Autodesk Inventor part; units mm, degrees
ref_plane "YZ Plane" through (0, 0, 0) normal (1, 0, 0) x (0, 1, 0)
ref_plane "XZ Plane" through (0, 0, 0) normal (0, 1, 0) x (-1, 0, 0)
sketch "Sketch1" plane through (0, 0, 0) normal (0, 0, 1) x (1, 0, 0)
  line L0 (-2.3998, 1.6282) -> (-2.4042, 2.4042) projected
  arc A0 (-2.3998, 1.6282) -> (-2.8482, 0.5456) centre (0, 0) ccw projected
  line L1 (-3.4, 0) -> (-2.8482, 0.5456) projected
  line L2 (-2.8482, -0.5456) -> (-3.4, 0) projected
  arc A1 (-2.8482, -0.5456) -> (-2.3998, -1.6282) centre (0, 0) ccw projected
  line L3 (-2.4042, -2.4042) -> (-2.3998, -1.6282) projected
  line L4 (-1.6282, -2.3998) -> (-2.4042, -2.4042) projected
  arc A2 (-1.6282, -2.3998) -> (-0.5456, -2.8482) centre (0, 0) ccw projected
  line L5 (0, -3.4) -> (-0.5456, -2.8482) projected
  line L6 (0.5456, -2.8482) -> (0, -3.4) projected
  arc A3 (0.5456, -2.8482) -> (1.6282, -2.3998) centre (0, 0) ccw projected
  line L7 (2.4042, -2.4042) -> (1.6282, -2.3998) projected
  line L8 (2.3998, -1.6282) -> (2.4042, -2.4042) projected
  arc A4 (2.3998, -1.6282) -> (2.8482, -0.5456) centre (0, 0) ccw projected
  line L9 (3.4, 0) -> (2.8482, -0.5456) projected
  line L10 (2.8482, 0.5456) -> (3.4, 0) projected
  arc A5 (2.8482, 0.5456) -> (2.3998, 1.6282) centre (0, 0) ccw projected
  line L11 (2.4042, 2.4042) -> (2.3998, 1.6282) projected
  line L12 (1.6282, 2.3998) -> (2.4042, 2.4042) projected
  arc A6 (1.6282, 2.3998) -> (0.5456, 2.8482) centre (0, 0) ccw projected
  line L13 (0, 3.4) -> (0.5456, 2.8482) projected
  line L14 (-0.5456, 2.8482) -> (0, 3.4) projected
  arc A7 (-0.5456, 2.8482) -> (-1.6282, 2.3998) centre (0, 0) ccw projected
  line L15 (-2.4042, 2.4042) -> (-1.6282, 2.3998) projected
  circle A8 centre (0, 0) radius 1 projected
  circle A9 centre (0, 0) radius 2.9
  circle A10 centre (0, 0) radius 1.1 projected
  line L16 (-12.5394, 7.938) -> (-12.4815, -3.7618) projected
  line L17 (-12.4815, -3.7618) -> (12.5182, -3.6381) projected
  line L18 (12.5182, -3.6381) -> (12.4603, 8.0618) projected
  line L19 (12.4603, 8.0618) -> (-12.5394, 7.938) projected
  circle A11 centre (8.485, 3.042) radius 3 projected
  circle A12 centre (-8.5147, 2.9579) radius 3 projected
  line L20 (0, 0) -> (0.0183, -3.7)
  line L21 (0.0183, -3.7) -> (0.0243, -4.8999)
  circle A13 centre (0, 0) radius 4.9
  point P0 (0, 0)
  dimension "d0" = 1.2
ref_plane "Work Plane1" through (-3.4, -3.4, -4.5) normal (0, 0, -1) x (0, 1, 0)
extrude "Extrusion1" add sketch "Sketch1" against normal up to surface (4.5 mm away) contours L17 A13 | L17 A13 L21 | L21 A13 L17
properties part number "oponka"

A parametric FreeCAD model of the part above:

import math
import FreeCAD as App
import Part
import Sketcher

V = App.Vector
Q = App.Units.Quantity

doc = App.newDocument("Part")
body = doc.addObject("PartDesign::Body", "Body")

# Sketch on XY plane
sketch1 = body.newObject("Sketcher::SketchObject", "Sketch")
sketch1.AttachmentSupport = (doc.getObject("XY_Plane"), [""])
sketch1.MapMode = "FlatFace"
sketch1.addGeometry(Part.Circle(V(0, 0, 0), V(0, 0, 1), 4.9), False)
sketch1.addGeometry(Part.ArcOfCircle(Part.Circle(V(0, 0, 0), V(0, 0, 1), 2.9), math.radians(146), math.radians(169)), False)
sketch1.addGeometry(Part.LineSegment(V(-2.4, 1.628, 0), V(-2.404, 2.404, 0)), False)
sketch1.addGeometry(Part.LineSegment(V(-2.404, 2.404, 0), V(-1.628, 2.4, 0)), False)
sketch1.addGeometry(Part.ArcOfCircle(Part.Circle(V(0, 0, 0), V(0, 0, 1), 2.9), math.radians(101), math.radians(124)), False)
sketch1.addGeometry(Part.LineSegment(V(-0.546, 2.848, 0), V(0, 3.4, 0)), False)
sketch1.addGeometry(Part.LineSegment(V(0, 3.4, 0), V(0.546, 2.848, 0)), False)
sketch1.addGeometry(Part.ArcOfCircle(Part.Circle(V(0, 0, 0), V(0, 0, 1), 2.9), math.radians(56), math.radians(79)), False)
sketch1.addGeometry(Part.LineSegment(V(1.628, 2.4, 0), V(2.404, 2.404, 0)), False)
sketch1.addGeometry(Part.LineSegment(V(2.404, 2.404, 0), V(2.4, 1.628, 0)), False)
sketch1.addGeometry(Part.ArcOfCircle(Part.Circle(V(0, 0, 0), V(0, 0, 1), 2.9), math.radians(11), math.radians(34)), False)
sketch1.addGeometry(Part.LineSegment(V(2.848, 0.546, 0), V(3.4, 0, 0)), False)
sketch1.addGeometry(Part.LineSegment(V(3.4, 0, 0), V(2.848, -0.546, 0)), False)
sketch1.addGeometry(Part.ArcOfCircle(Part.Circle(V(0, 0, 0), V(0, 0, 1), 2.9), math.radians(-34), math.radians(-11)), False)
sketch1.addGeometry(Part.LineSegment(V(2.4, -1.628, 0), V(2.404, -2.404, 0)), False)
sketch1.addGeometry(Part.LineSegment(V(2.404, -2.404, 0), V(1.628, -2.4, 0)), False)
sketch1.addGeometry(Part.ArcOfCircle(Part.Circle(V(0, 0, 0), V(0, 0, 1), 2.9), math.radians(-79), math.radians(-56)), False)
sketch1.addGeometry(Part.LineSegment(V(0.546, -2.848, 0), V(0.017, -3.383, 0)), False)
sketch1.addGeometry(Part.LineSegment(V(0.017, -3.383, 0), V(0, -3.4, 0)), False)
sketch1.addGeometry(Part.LineSegment(V(0, -3.4, 0), V(-0.546, -2.848, 0)), False)
sketch1.addGeometry(Part.ArcOfCircle(Part.Circle(V(0, 0, 0), V(0, 0, 1), 2.9), math.radians(-124), math.radians(-101)), False)
sketch1.addGeometry(Part.LineSegment(V(-1.628, -2.4, 0), V(-2.404, -2.404, 0)), False)
sketch1.addGeometry(Part.LineSegment(V(-2.404, -2.404, 0), V(-2.4, -1.628, 0)), False)
sketch1.addGeometry(Part.ArcOfCircle(Part.Circle(V(0, 0, 0), V(0, 0, 1), 2.9), math.radians(-169), math.radians(-146)), False)
sketch1.addGeometry(Part.LineSegment(V(-2.848, -0.546, 0), V(-3.4, 0, 0)), False)
sketch1.addGeometry(Part.LineSegment(V(-3.4, 0, 0), V(-2.848, 0.546, 0)), False)
sketch1.addConstraint(Sketcher.Constraint("Coincident", 1, 1, 2, 1))
sketch1.addConstraint(Sketcher.Constraint("Coincident", 2, 2, 3, 1))
sketch1.addConstraint(Sketcher.Constraint("Coincident", 3, 2, 4, 2))
sketch1.addConstraint(Sketcher.Constraint("Coincident", 4, 1, 5, 1))
sketch1.addConstraint(Sketcher.Constraint("Coincident", 5, 2, 6, 1))
sketch1.addConstraint(Sketcher.Constraint("Coincident", 6, 2, 7, 2))
sketch1.addConstraint(Sketcher.Constraint("Coincident", 7, 1, 8, 1))
sketch1.addConstraint(Sketcher.Constraint("Coincident", 8, 2, 9, 1))
sketch1.addConstraint(Sketcher.Constraint("Coincident", 9, 2, 10, 2))
sketch1.addConstraint(Sketcher.Constraint("Coincident", 10, 1, 11, 1))
sketch1.addConstraint(Sketcher.Constraint("Coincident", 11, 2, 12, 1))
sketch1.addConstraint(Sketcher.Constraint("Coincident", 12, 2, 13, 2))
sketch1.addConstraint(Sketcher.Constraint("Coincident", 13, 1, 14, 1))
sketch1.addConstraint(Sketcher.Constraint("Coincident", 14, 2, 15, 1))
sketch1.addConstraint(Sketcher.Constraint("Coincident", 15, 2, 16, 2))
sketch1.addConstraint(Sketcher.Constraint("Coincident", 16, 1, 17, 1))
sketch1.addConstraint(Sketcher.Constraint("Coincident", 17, 2, 18, 1))
sketch1.addConstraint(Sketcher.Constraint("Coincident", 18, 2, 19, 1))
sketch1.addConstraint(Sketcher.Constraint("Coincident", 19, 2, 20, 2))
sketch1.addConstraint(Sketcher.Constraint("Coincident", 20, 1, 21, 1))
sketch1.addConstraint(Sketcher.Constraint("Coincident", 21, 2, 22, 1))
sketch1.addConstraint(Sketcher.Constraint("Coincident", 22, 2, 23, 2))
sketch1.addConstraint(Sketcher.Constraint("Coincident", 23, 1, 24, 1))
sketch1.addConstraint(Sketcher.Constraint("Coincident", 24, 2, 25, 1))
sketch1.addConstraint(Sketcher.Constraint("Coincident", 25, 2, 1, 2))
sketch1.addConstraint(Sketcher.Constraint("Coincident", 0, 3, -1, 1))
sketch1.addConstraint(Sketcher.Constraint("Coincident", 1, 3, -1, 1))
sketch1.addConstraint(Sketcher.Constraint("Coincident", 4, 3, -1, 1))
sketch1.addConstraint(Sketcher.Constraint("Coincident", 7, 3, -1, 1))
sketch1.addConstraint(Sketcher.Constraint("Coincident", 10, 3, -1, 1))
sketch1.addConstraint(Sketcher.Constraint("Coincident", 13, 3, -1, 1))
sketch1.addConstraint(Sketcher.Constraint("Coincident", 16, 3, -1, 1))
sketch1.addConstraint(Sketcher.Constraint("Coincident", 20, 3, -1, 1))
sketch1.addConstraint(Sketcher.Constraint("Coincident", 23, 3, -1, 1))
sketch1.addConstraint(Sketcher.Constraint("Equal", 1, 4))
sketch1.addConstraint(Sketcher.Constraint("Equal", 4, 7))
sketch1.addConstraint(Sketcher.Constraint("Equal", 7, 10))
sketch1.addConstraint(Sketcher.Constraint("Equal", 10, 13))
sketch1.addConstraint(Sketcher.Constraint("Equal", 13, 16))
sketch1.addConstraint(Sketcher.Constraint("Equal", 16, 20))
sketch1.addConstraint(Sketcher.Constraint("Equal", 20, 23))
sketch1.addConstraint(Sketcher.Constraint("Symmetric", 2, 2, 14, 2, -1, 1))
sketch1.addConstraint(Sketcher.Constraint("Symmetric", 5, 2, 18, 2, -1, 1))
sketch1.addConstraint(Sketcher.Constraint("Symmetric", 8, 2, 21, 2, -1, 1))
sketch1.addConstraint(Sketcher.Constraint("Symmetric", 11, 2, 24, 2, -1, 1))
sketch1.addConstraint(Sketcher.Constraint("Symmetric", 2, 2, 8, 2, -2))
sketch1.addConstraint(Sketcher.Constraint("PointOnObject", 5, 2, -2))
sketch1.addConstraint(Sketcher.Constraint("PointOnObject", 11, 2, -1))
sketch1.addConstraint(Sketcher.Constraint("Perpendicular", 2, 8))
sketch1.addConstraint(Sketcher.Constraint("Perpendicular", 3, 9))
sketch1.addConstraint(Sketcher.Constraint("Perpendicular", 5, 11))
sketch1.addConstraint(Sketcher.Constraint("Perpendicular", 6, 12))
sketch1.addConstraint(Sketcher.Constraint("Perpendicular", 8, 14))
sketch1.addConstraint(Sketcher.Constraint("Perpendicular", 9, 15))
sketch1.addConstraint(Sketcher.Constraint("Perpendicular", 11, 17))
sketch1.addConstraint(Sketcher.Constraint("Parallel", 17, 18))
sketch1.addConstraint(Sketcher.Constraint("Perpendicular", 12, 19))
sketch1.addConstraint(Sketcher.Constraint("Perpendicular", 14, 21))
sketch1.addConstraint(Sketcher.Constraint("Perpendicular", 15, 22))
sketch1.addConstraint(Sketcher.Constraint("Perpendicular", 18, 24))
sketch1.addConstraint(Sketcher.Constraint("Perpendicular", 19, 25))
sketch1.addConstraint(Sketcher.Constraint("Horizontal", 4, 1, 6, 2))
sketch1.addConstraint(Sketcher.Constraint("Horizontal", 3, 2, 7, 1))
sketch1.addConstraint(Sketcher.Constraint("Equal", 2, 3))
sketch1.addConstraint(Sketcher.Constraint("Equal", 3, 5))
sketch1.addConstraint(Sketcher.Constraint("Equal", 9, 11))
sketch1.addConstraint(Sketcher.Constraint("Diameter", 0, Q("9.8 mm")))
sketch1.addConstraint(Sketcher.Constraint("Radius", 1, Q("2.9 mm")))
sketch1.addConstraint(Sketcher.Constraint("DistanceY", -1, 1, 5, 2, Q("3.4 mm")))
sketch1.addConstraint(Sketcher.Constraint("DistanceY", 1, 1, 4, 1, Q("1.22 mm")))
sketch1.addConstraint(Sketcher.Constraint("Distance", 2, Q("0.776 mm")))
sketch1.addConstraint(Sketcher.Constraint("DistanceY", 17, 2, -1, 1, Q("3.383 mm")))
pad1 = body.newObject("PartDesign::Pad", "Pad")
pad1.Profile = sketch1
pad1.Length = 4.5
pad1.Reversed = True

doc.recompute()
